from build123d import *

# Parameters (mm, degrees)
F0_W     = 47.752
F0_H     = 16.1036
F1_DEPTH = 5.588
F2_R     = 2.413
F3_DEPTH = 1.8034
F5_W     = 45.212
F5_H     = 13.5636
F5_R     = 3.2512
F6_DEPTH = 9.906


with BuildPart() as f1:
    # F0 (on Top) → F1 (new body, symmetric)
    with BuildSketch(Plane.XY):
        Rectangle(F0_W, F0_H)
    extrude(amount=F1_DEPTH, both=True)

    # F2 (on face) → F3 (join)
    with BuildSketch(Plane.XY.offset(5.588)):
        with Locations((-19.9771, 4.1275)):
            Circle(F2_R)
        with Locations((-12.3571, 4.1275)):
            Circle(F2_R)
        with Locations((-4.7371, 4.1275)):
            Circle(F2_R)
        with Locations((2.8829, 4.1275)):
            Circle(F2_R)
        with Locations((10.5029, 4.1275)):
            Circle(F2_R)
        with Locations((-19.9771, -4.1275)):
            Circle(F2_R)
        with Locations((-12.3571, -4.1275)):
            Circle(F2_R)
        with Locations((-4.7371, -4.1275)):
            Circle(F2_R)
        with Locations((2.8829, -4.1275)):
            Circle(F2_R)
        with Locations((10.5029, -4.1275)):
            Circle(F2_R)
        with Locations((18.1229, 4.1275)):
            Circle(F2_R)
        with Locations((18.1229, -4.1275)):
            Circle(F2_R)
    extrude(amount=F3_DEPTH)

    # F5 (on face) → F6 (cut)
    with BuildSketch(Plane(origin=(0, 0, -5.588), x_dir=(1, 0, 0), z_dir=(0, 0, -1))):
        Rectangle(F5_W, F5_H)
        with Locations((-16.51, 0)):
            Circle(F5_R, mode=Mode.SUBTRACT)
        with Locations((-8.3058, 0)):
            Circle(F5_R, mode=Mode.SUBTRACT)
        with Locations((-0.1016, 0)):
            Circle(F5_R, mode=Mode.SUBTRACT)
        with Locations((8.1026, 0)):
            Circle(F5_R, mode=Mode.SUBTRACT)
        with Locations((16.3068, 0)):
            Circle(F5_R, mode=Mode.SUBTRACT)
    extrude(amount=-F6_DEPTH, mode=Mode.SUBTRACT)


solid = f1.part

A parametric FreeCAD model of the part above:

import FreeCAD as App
import Part
import Sketcher
Q = App.Units.Quantity

doc = App.newDocument("Part")
body = doc.addObject("PartDesign::Body", "Body")

# Sketch on XY plane
sketch1 = body.newObject("Sketcher::SketchObject", "Sketch")
sketch1.AttachmentSupport = (doc.getObject("XY_Plane"), [""])
sketch1.MapMode = "FlatFace"
sketch1.addGeometry([
    Part.LineSegment(App.Vector(-24, 8, 0), App.Vector(-24, -8, 0)),
    Part.LineSegment(App.Vector(-24, -8, 0), App.Vector(24, -8, 0)),
    Part.LineSegment(App.Vector(24, -8, 0), App.Vector(24, 8, 0)),
    Part.LineSegment(App.Vector(24, 8, 0), App.Vector(-24, 8, 0)),
], False)
sketch1.addConstraint([
    Sketcher.Constraint("Coincident", 0, 2, 1, 1),
    Sketcher.Constraint("Coincident", 1, 2, 2, 1),
    Sketcher.Constraint("Coincident", 2, 2, 3, 1),
    Sketcher.Constraint("Coincident", 3, 2, 0, 1),
    Sketcher.Constraint("Vertical", 0),
    Sketcher.Constraint("Horizontal", 1),
    Sketcher.Constraint("Vertical", 2),
    Sketcher.Constraint("Horizontal", 3),
    Sketcher.Constraint("Symmetric", 0, 2, 2, 2, -1, 1),
    Sketcher.Constraint("DistanceX", 1, 1, 1, 2, Q("1.88 in")),
    Sketcher.Constraint("DistanceY", 0, 2, 0, 1, Q("0.634 in")),
])
pad1 = body.newObject("PartDesign::Pad", "Pad")
pad1.Profile = sketch1
pad1.Length = Q("0.44 in")
pad1.Midplane = True

# Sketch on XY plane
sketch2 = body.newObject("Sketcher::SketchObject", "Sketch001")
sketch2.AttachmentSupport = (doc.getObject("XY_Plane"), [""])
sketch2.MapMode = "FlatFace"
sketch2.AttachmentOffset = App.Placement(App.Vector(0, 0, 0.22 * 25.4), App.Rotation())
sketch2.addGeometry([
    Part.Circle(App.Vector(-20, 4.1, 0), App.Vector(0, 0, 1), 2.4),  # 0
    Part.Circle(App.Vector(-12.4, 4.1, 0), App.Vector(0, 0, 1), 2.4),  # 1
    Part.Circle(App.Vector(-4.7, 4.1, 0), App.Vector(0, 0, 1), 2.4),  # 2
    Part.Circle(App.Vector(2.9, 4.1, 0), App.Vector(0, 0, 1), 2.4),  # 3
    Part.Circle(App.Vector(10.5, 4.1, 0), App.Vector(0, 0, 1), 2.4),  # 4
    Part.Circle(App.Vector(-20, -4.1, 0), App.Vector(0, 0, 1), 2.4),  # 5
    Part.Circle(App.Vector(-12.4, -4.1, 0), App.Vector(0, 0, 1), 2.4),  # 6
    Part.Circle(App.Vector(-4.7, -4.1, 0), App.Vector(0, 0, 1), 2.4),  # 7
    Part.Circle(App.Vector(2.9, -4.1, 0), App.Vector(0, 0, 1), 2.4),  # 8
    Part.Circle(App.Vector(10.5, -4.1, 0), App.Vector(0, 0, 1), 2.4),  # 9
    Part.Circle(App.Vector(18.1, 4.1, 0), App.Vector(0, 0, 1), 2.4),  # 10
    Part.Circle(App.Vector(18.1, -4.1, 0), App.Vector(0, 0, 1), 2.4),  # 11
], False)
sketch2.addConstraint([
    Sketcher.Constraint("Equal", 0, 1),
    Sketcher.Constraint("Equal", 1, 2),
    Sketcher.Constraint("Equal", 2, 3),
    Sketcher.Constraint("Equal", 3, 4),
    Sketcher.Constraint("Equal", 4, 5),
    Sketcher.Constraint("Equal", 5, 6),
    Sketcher.Constraint("Equal", 6, 7),
    Sketcher.Constraint("Equal", 7, 8),
    Sketcher.Constraint("Equal", 8, 9),
    Sketcher.Constraint("Equal", 9, 10),
    Sketcher.Constraint("Equal", 10, 11),
    Sketcher.Constraint("Symmetric", 0, 3, 5, 3, -1),
    Sketcher.Constraint("Symmetric", 1, 3, 6, 3, -1),
    Sketcher.Constraint("Symmetric", 2, 3, 7, 3, -1),
    Sketcher.Constraint("Symmetric", 3, 3, 8, 3, -1),
    Sketcher.Constraint("Symmetric", 4, 3, 9, 3, -1),
    Sketcher.Constraint("Symmetric", 10, 3, 11, 3, -1),
    Sketcher.Constraint("Horizontal", 0, 3, 1, 3),
    Sketcher.Constraint("Horizontal", 1, 3, 2, 3),
    Sketcher.Constraint("Horizontal", 2, 3, 3, 3),
    Sketcher.Constraint("Horizontal", 3, 3, 4, 3),
    Sketcher.Constraint("Horizontal", 4, 3, 10, 3),
    Sketcher.Constraint("Diameter", 0, Q("0.19 in")),
    Sketcher.Constraint("DistanceX", 0, 3, 1, 3, Q("0.3 in")),
    Sketcher.Constraint("DistanceX", 1, 3, 2, 3, Q("0.3 in")),
    Sketcher.Constraint("DistanceX", 2, 3, 3, 3, Q("0.3 in")),
    Sketcher.Constraint("DistanceX", 3, 3, 4, 3, Q("0.3 in")),
    Sketcher.Constraint("DistanceX", 4, 3, 10, 3, Q("0.3 in")),
    Sketcher.Constraint("DistanceY", 5, 3, 0, 3, Q("0.325 in")),
    Sketcher.Constraint("DistanceX", 0, 3, -1, 1, Q("0.7865 in")),
])
pad2 = body.newObject("PartDesign::Pad", "Pad001")
pad2.Profile = sketch2
pad2.Length = Q("0.071 in")

# Sketch on XY plane
sketch3 = body.newObject("Sketcher::SketchObject", "Sketch002")
sketch3.AttachmentSupport = (doc.getObject("XY_Plane"), [""])
sketch3.MapMode = "FlatFace"
sketch3.AttachmentOffset = App.Placement(App.Vector(0, 0, -0.22 * 25.4), App.Rotation())
sketch3.addGeometry([
    Part.LineSegment(App.Vector(-22.6, -6.8, 0), App.Vector(-22.6, 6.8, 0)),  # 0
    Part.LineSegment(App.Vector(-22.6, 6.8, 0), App.Vector(22.6, 6.8, 0)),  # 1
    Part.LineSegment(App.Vector(22.6, 6.8, 0), App.Vector(22.6, -6.8, 0)),  # 2
    Part.LineSegment(App.Vector(22.6, -6.8, 0), App.Vector(-22.6, -6.8, 0)),  # 3
    Part.Circle(App.Vector(-16.5, 0, 0), App.Vector(0, 0, 1), 3.3),  # 4
    Part.Circle(App.Vector(-8.3, 0, 0), App.Vector(0, 0, 1), 3.3),  # 5
    Part.Circle(App.Vector(-0.1, 0, 0), App.Vector(0, 0, 1), 3.3),  # 6
    Part.Circle(App.Vector(8.1, 0, 0), App.Vector(0, 0, 1), 3.3),  # 7
    Part.Circle(App.Vector(16.3, 0, 0), App.Vector(0, 0, 1), 3.3),  # 8
], False)
sketch3.addConstraint([
    Sketcher.Constraint("Coincident", 0, 2, 1, 1),
    Sketcher.Constraint("Coincident", 1, 2, 2, 1),
    Sketcher.Constraint("Coincident", 2, 2, 3, 1),
    Sketcher.Constraint("Coincident", 3, 2, 0, 1),
    Sketcher.Constraint("Vertical", 0),
    Sketcher.Constraint("Horizontal", 1),
    Sketcher.Constraint("Vertical", 2),
    Sketcher.Constraint("Horizontal", 3),
    Sketcher.Constraint("Equal", 4, 5),
    Sketcher.Constraint("Equal", 5, 6),
    Sketcher.Constraint("Equal", 6, 7),
    Sketcher.Constraint("Equal", 7, 8),
    Sketcher.Constraint("Symmetric", 0, 2, 2, 2, -1, 1),
    Sketcher.Constraint("PointOnObject", 4, 3, -1),
    Sketcher.Constraint("PointOnObject", 5, 3, -1),
    Sketcher.Constraint("PointOnObject", 6, 3, -1),
    Sketcher.Constraint("PointOnObject", 7, 3, -1),
    Sketcher.Constraint("PointOnObject", 8, 3, -1),
    Sketcher.Constraint("Diameter", 4, Q("0.256 in")),
    Sketcher.Constraint("DistanceX", 1, 1, 1, 2, Q("1.78 in")),
    Sketcher.Constraint("DistanceY", 0, 1, 0, 2, Q("0.534 in")),
    Sketcher.Constraint("DistanceX", 4, 3, -1, 1, Q("0.65 in")),
    Sketcher.Constraint("DistanceX", 5, 3, -1, 1, Q("0.327 in")),
    Sketcher.Constraint("DistanceX", 6, 3, -1, 1, Q("0.004 in")),
    Sketcher.Constraint("DistanceX", -1, 1, 7, 3, Q("0.319 in")),
    Sketcher.Constraint("DistanceX", -1, 1, 8, 3, Q("0.642 in")),
])
pocket1 = body.newObject("PartDesign::Pocket", "Pocket")
pocket1.Profile = sketch3
pocket1.Length = Q("0.39 in")
pocket1.Reversed = True

doc.recompute()
